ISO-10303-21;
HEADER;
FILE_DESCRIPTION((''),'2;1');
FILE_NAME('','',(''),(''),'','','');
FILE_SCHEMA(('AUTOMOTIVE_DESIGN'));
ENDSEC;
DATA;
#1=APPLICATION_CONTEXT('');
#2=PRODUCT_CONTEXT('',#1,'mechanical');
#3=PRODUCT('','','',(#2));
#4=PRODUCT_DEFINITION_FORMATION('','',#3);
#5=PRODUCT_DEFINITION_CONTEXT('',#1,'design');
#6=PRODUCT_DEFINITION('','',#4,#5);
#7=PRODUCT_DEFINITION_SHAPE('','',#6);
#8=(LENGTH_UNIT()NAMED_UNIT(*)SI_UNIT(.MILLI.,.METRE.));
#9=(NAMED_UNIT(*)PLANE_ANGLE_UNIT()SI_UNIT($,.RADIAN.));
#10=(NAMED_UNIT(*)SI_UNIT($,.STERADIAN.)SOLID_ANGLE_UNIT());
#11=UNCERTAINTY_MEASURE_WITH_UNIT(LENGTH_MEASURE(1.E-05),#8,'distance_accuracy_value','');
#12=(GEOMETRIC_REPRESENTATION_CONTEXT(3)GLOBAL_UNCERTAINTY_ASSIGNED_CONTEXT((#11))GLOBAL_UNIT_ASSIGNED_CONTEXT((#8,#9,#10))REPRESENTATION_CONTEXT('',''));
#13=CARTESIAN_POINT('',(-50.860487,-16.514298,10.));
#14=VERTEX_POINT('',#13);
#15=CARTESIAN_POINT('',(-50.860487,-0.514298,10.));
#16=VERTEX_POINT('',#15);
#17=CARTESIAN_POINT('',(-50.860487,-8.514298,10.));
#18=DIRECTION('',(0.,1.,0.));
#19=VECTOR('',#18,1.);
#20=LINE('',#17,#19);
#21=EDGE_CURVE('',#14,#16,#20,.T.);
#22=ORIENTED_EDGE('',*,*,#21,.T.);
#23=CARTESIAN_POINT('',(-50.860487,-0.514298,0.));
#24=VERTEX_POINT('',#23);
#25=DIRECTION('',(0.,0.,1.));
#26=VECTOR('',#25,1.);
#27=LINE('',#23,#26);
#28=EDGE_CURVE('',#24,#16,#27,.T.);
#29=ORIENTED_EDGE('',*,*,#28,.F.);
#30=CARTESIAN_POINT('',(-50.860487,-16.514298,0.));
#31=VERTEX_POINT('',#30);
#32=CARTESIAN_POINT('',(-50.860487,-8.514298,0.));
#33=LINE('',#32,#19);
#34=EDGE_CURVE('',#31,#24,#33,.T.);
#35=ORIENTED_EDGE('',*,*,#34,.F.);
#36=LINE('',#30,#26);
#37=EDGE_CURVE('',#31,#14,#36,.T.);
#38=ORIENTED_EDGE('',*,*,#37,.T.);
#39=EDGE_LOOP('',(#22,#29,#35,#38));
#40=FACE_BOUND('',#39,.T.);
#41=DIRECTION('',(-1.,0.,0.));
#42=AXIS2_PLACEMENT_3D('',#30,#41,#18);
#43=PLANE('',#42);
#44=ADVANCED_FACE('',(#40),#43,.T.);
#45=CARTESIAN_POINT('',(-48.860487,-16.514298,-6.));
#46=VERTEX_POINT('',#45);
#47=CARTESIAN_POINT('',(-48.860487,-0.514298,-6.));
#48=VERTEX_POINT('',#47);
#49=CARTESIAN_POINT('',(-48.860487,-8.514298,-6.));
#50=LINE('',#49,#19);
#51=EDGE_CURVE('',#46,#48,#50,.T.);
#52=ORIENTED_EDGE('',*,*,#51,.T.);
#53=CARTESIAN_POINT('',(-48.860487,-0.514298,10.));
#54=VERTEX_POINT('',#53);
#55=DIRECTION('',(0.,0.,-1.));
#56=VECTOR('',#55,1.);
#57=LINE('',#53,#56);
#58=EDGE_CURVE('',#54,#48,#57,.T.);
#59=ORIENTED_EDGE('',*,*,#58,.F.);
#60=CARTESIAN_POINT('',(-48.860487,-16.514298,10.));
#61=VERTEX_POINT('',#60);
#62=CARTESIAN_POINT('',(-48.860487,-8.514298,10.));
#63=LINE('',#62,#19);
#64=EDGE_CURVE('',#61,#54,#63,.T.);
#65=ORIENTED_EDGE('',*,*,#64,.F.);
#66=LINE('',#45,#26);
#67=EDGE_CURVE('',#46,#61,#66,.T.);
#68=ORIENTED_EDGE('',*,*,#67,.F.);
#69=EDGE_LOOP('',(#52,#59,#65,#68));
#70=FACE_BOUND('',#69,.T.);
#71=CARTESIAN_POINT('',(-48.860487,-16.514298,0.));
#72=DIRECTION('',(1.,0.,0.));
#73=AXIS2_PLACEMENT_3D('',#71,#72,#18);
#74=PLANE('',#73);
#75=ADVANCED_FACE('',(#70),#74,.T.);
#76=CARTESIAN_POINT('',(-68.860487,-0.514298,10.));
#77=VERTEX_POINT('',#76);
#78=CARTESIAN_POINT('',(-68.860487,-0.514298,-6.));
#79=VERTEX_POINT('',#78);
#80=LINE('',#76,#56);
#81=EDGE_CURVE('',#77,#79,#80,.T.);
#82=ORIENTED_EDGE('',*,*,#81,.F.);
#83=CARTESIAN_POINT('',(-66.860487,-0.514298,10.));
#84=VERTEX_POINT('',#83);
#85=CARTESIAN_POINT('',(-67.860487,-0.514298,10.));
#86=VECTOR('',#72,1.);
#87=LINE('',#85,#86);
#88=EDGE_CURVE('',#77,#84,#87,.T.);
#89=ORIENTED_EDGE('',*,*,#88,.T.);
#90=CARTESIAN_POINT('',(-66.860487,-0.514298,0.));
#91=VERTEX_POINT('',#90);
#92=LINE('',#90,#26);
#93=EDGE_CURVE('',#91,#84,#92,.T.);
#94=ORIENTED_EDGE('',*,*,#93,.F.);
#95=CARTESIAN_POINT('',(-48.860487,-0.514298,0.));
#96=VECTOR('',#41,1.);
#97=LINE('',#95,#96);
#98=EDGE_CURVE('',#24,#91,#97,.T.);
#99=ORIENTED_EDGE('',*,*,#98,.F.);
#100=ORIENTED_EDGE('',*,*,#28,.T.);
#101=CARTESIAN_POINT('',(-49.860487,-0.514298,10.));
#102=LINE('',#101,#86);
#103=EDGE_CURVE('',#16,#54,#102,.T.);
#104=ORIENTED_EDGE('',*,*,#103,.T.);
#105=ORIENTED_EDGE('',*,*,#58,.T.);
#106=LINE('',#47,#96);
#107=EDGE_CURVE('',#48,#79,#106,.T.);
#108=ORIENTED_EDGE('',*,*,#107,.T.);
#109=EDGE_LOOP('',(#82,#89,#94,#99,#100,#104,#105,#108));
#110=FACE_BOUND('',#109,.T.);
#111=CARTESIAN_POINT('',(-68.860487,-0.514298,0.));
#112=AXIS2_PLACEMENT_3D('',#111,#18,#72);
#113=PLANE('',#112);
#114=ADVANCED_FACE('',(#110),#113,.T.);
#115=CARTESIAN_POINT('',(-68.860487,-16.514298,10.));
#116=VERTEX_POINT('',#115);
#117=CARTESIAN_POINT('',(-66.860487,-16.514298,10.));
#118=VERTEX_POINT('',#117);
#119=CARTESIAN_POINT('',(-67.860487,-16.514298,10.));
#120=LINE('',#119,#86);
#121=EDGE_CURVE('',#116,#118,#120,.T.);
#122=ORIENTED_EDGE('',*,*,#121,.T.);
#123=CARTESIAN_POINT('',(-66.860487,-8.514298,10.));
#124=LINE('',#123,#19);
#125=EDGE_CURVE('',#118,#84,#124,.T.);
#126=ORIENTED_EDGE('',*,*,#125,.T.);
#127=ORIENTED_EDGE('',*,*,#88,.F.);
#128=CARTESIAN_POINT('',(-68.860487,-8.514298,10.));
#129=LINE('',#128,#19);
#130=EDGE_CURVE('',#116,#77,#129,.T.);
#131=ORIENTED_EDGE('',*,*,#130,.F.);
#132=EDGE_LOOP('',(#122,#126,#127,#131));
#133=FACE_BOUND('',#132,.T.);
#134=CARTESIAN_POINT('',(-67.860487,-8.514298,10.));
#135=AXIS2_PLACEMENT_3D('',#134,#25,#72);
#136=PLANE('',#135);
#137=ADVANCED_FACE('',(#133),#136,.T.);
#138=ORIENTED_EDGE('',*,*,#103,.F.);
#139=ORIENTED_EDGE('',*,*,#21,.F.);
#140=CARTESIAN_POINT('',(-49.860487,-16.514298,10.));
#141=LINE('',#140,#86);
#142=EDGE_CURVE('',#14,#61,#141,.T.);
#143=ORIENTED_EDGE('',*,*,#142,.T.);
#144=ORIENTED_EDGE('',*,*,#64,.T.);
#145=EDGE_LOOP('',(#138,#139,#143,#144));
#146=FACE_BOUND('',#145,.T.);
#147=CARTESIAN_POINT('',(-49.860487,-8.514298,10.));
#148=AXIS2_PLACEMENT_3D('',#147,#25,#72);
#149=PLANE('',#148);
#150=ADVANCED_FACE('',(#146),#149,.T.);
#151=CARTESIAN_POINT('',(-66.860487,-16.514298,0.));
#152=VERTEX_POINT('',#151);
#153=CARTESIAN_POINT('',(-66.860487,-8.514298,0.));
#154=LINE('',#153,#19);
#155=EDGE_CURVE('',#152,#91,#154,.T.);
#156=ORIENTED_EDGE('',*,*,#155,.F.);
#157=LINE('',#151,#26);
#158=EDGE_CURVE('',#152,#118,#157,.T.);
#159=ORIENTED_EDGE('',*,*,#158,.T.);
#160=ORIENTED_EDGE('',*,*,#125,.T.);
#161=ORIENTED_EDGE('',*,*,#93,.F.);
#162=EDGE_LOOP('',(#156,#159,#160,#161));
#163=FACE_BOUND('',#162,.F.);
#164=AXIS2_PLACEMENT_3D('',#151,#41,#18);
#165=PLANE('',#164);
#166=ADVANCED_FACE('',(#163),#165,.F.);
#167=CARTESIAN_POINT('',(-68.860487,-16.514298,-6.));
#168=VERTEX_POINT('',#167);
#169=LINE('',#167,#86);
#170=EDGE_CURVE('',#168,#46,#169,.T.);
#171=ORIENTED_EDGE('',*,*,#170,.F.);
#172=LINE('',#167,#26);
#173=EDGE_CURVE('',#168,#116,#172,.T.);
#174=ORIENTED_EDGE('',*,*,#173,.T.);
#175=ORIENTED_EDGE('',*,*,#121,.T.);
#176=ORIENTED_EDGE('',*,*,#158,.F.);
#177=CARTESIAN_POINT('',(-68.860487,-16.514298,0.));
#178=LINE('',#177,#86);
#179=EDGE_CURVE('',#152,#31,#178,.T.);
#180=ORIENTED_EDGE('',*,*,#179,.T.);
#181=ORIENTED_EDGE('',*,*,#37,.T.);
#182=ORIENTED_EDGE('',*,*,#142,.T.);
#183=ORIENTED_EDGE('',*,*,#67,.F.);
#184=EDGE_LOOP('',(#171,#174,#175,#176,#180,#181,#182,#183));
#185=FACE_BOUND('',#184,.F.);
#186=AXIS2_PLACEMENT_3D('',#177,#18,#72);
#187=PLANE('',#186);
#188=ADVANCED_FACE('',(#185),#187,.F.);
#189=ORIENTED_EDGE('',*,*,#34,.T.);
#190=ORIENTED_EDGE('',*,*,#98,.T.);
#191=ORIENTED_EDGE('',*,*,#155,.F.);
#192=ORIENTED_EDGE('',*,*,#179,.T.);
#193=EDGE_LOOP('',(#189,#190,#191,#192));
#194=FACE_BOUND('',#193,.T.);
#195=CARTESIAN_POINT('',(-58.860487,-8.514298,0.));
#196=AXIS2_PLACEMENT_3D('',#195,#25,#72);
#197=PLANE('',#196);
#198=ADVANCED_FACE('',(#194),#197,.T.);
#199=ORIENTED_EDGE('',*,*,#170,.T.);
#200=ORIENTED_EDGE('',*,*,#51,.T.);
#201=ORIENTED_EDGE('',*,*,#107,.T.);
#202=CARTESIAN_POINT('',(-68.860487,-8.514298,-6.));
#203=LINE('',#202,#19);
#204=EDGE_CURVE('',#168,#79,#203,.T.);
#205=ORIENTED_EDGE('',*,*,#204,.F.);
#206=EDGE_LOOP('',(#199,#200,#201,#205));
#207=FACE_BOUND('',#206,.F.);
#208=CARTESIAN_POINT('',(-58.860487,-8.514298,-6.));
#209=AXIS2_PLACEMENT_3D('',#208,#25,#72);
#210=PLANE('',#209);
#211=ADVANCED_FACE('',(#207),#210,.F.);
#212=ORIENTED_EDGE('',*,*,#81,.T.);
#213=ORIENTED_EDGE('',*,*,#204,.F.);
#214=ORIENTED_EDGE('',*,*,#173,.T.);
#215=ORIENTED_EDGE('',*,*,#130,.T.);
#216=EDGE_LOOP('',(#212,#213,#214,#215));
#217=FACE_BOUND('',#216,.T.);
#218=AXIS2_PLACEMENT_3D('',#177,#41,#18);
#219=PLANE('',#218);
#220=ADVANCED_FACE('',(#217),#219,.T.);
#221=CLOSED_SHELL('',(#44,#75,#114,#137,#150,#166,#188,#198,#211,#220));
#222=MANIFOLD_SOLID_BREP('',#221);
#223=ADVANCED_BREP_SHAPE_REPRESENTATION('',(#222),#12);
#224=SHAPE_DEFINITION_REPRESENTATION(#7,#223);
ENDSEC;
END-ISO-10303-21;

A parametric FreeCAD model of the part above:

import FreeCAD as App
import Part
import Sketcher

V = App.Vector
Q = App.Units.Quantity


def add_polygon(sketch, points):
    """Adds a closed chain of lines whose ends are joined by coincident constraints."""
    first, n = sketch.GeometryCount, len(points)
    for a, b in zip(points, points[1:] + points[:1]):
        sketch.addGeometry(Part.LineSegment(App.Vector(*a, 0), App.Vector(*b, 0)), False)
    for i in range(n):
        sketch.addConstraint(Sketcher.Constraint("Coincident", first + i, 2, first + (i + 1) % n, 1))

doc = App.newDocument("Part")
body = doc.addObject("PartDesign::Body", "Body")

# Sketch on XY plane
sketch1 = doc.addObject("Sketcher::SketchObject", "Sketch")
body.addObject(sketch1)
sketch1.AttachmentSupport = (doc.XY_Plane, [""])
sketch1.MapMode = "FlatFace"
add_polygon(sketch1, [(-68.860487, -0.514298), (-68.860487, -16.514298), (-48.860487, -16.514298), (-48.860487, -0.514298)])  # lines 0-3
sketch1.addConstraint([
    Sketcher.Constraint("Vertical", 0),
    Sketcher.Constraint("Horizontal", 1),
    Sketcher.Constraint("Vertical", 2),
    Sketcher.Constraint("Horizontal", 3),
    Sketcher.Constraint("DistanceX", 1, 1, 1, 2, Q("20 mm")),
    Sketcher.Constraint("DistanceY", 0, 2, 0, 1, Q("16 mm")),
    Sketcher.Constraint("DistanceY", 0, 2, -1, 1, Q("16.514298 mm")),
    Sketcher.Constraint("DistanceX", 0, 2, -1, 1, Q("68.860487 mm")),
])
pad1 = doc.addObject("PartDesign::Pad", "Pad")
body.addObject(pad1)
pad1.Profile = sketch1
pad1.Length = 6
pad1.Reversed = True

# Sketch on XY plane
sketch2 = doc.addObject("Sketcher::SketchObject", "Sketch001")
body.addObject(sketch2)
sketch2.AttachmentSupport = (doc.XY_Plane, [""])
sketch2.MapMode = "FlatFace"
add_polygon(sketch2, [(-68.860487, -0.514298), (-68.860487, -16.514298), (-66.860487, -16.514298), (-66.860487, -0.514298)])  # lines 0-3
add_polygon(sketch2, [(-50.860487, -0.514298), (-50.860487, -16.514298), (-48.860487, -16.514298), (-48.860487, -0.514298)])  # lines 4-7
sketch2.addConstraint([
    Sketcher.Constraint("Vertical", 0),
    Sketcher.Constraint("Horizontal", 1),
    Sketcher.Constraint("Vertical", 2),
    Sketcher.Constraint("Horizontal", 3),
    Sketcher.Constraint("Vertical", 4),
    Sketcher.Constraint("Horizontal", 5),
    Sketcher.Constraint("Vertical", 6),
    Sketcher.Constraint("Horizontal", 7),
    Sketcher.Constraint("Horizontal", 1, 2, 4, 2),
    Sketcher.Constraint("Horizontal", 3, 2, 6, 2),
    Sketcher.Constraint("Equal", 3, 5),
    Sketcher.Constraint("DistanceX", 1, 1, 1, 2, Q("2 mm")),
    Sketcher.Constraint("DistanceY", 0, 2, 0, 1, Q("16 mm")),
    Sketcher.Constraint("DistanceX", 1, 2, 4, 2, Q("16 mm")),
    Sketcher.Constraint("DistanceY", 0, 2, -1, 1, Q("16.514298 mm")),
    Sketcher.Constraint("DistanceX", 0, 2, -1, 1, Q("68.860487 mm")),
])
pad2 = doc.addObject("PartDesign::Pad", "Pad001")
body.addObject(pad2)
pad2.Profile = sketch2
pad2.Length = 10

doc.recompute()
